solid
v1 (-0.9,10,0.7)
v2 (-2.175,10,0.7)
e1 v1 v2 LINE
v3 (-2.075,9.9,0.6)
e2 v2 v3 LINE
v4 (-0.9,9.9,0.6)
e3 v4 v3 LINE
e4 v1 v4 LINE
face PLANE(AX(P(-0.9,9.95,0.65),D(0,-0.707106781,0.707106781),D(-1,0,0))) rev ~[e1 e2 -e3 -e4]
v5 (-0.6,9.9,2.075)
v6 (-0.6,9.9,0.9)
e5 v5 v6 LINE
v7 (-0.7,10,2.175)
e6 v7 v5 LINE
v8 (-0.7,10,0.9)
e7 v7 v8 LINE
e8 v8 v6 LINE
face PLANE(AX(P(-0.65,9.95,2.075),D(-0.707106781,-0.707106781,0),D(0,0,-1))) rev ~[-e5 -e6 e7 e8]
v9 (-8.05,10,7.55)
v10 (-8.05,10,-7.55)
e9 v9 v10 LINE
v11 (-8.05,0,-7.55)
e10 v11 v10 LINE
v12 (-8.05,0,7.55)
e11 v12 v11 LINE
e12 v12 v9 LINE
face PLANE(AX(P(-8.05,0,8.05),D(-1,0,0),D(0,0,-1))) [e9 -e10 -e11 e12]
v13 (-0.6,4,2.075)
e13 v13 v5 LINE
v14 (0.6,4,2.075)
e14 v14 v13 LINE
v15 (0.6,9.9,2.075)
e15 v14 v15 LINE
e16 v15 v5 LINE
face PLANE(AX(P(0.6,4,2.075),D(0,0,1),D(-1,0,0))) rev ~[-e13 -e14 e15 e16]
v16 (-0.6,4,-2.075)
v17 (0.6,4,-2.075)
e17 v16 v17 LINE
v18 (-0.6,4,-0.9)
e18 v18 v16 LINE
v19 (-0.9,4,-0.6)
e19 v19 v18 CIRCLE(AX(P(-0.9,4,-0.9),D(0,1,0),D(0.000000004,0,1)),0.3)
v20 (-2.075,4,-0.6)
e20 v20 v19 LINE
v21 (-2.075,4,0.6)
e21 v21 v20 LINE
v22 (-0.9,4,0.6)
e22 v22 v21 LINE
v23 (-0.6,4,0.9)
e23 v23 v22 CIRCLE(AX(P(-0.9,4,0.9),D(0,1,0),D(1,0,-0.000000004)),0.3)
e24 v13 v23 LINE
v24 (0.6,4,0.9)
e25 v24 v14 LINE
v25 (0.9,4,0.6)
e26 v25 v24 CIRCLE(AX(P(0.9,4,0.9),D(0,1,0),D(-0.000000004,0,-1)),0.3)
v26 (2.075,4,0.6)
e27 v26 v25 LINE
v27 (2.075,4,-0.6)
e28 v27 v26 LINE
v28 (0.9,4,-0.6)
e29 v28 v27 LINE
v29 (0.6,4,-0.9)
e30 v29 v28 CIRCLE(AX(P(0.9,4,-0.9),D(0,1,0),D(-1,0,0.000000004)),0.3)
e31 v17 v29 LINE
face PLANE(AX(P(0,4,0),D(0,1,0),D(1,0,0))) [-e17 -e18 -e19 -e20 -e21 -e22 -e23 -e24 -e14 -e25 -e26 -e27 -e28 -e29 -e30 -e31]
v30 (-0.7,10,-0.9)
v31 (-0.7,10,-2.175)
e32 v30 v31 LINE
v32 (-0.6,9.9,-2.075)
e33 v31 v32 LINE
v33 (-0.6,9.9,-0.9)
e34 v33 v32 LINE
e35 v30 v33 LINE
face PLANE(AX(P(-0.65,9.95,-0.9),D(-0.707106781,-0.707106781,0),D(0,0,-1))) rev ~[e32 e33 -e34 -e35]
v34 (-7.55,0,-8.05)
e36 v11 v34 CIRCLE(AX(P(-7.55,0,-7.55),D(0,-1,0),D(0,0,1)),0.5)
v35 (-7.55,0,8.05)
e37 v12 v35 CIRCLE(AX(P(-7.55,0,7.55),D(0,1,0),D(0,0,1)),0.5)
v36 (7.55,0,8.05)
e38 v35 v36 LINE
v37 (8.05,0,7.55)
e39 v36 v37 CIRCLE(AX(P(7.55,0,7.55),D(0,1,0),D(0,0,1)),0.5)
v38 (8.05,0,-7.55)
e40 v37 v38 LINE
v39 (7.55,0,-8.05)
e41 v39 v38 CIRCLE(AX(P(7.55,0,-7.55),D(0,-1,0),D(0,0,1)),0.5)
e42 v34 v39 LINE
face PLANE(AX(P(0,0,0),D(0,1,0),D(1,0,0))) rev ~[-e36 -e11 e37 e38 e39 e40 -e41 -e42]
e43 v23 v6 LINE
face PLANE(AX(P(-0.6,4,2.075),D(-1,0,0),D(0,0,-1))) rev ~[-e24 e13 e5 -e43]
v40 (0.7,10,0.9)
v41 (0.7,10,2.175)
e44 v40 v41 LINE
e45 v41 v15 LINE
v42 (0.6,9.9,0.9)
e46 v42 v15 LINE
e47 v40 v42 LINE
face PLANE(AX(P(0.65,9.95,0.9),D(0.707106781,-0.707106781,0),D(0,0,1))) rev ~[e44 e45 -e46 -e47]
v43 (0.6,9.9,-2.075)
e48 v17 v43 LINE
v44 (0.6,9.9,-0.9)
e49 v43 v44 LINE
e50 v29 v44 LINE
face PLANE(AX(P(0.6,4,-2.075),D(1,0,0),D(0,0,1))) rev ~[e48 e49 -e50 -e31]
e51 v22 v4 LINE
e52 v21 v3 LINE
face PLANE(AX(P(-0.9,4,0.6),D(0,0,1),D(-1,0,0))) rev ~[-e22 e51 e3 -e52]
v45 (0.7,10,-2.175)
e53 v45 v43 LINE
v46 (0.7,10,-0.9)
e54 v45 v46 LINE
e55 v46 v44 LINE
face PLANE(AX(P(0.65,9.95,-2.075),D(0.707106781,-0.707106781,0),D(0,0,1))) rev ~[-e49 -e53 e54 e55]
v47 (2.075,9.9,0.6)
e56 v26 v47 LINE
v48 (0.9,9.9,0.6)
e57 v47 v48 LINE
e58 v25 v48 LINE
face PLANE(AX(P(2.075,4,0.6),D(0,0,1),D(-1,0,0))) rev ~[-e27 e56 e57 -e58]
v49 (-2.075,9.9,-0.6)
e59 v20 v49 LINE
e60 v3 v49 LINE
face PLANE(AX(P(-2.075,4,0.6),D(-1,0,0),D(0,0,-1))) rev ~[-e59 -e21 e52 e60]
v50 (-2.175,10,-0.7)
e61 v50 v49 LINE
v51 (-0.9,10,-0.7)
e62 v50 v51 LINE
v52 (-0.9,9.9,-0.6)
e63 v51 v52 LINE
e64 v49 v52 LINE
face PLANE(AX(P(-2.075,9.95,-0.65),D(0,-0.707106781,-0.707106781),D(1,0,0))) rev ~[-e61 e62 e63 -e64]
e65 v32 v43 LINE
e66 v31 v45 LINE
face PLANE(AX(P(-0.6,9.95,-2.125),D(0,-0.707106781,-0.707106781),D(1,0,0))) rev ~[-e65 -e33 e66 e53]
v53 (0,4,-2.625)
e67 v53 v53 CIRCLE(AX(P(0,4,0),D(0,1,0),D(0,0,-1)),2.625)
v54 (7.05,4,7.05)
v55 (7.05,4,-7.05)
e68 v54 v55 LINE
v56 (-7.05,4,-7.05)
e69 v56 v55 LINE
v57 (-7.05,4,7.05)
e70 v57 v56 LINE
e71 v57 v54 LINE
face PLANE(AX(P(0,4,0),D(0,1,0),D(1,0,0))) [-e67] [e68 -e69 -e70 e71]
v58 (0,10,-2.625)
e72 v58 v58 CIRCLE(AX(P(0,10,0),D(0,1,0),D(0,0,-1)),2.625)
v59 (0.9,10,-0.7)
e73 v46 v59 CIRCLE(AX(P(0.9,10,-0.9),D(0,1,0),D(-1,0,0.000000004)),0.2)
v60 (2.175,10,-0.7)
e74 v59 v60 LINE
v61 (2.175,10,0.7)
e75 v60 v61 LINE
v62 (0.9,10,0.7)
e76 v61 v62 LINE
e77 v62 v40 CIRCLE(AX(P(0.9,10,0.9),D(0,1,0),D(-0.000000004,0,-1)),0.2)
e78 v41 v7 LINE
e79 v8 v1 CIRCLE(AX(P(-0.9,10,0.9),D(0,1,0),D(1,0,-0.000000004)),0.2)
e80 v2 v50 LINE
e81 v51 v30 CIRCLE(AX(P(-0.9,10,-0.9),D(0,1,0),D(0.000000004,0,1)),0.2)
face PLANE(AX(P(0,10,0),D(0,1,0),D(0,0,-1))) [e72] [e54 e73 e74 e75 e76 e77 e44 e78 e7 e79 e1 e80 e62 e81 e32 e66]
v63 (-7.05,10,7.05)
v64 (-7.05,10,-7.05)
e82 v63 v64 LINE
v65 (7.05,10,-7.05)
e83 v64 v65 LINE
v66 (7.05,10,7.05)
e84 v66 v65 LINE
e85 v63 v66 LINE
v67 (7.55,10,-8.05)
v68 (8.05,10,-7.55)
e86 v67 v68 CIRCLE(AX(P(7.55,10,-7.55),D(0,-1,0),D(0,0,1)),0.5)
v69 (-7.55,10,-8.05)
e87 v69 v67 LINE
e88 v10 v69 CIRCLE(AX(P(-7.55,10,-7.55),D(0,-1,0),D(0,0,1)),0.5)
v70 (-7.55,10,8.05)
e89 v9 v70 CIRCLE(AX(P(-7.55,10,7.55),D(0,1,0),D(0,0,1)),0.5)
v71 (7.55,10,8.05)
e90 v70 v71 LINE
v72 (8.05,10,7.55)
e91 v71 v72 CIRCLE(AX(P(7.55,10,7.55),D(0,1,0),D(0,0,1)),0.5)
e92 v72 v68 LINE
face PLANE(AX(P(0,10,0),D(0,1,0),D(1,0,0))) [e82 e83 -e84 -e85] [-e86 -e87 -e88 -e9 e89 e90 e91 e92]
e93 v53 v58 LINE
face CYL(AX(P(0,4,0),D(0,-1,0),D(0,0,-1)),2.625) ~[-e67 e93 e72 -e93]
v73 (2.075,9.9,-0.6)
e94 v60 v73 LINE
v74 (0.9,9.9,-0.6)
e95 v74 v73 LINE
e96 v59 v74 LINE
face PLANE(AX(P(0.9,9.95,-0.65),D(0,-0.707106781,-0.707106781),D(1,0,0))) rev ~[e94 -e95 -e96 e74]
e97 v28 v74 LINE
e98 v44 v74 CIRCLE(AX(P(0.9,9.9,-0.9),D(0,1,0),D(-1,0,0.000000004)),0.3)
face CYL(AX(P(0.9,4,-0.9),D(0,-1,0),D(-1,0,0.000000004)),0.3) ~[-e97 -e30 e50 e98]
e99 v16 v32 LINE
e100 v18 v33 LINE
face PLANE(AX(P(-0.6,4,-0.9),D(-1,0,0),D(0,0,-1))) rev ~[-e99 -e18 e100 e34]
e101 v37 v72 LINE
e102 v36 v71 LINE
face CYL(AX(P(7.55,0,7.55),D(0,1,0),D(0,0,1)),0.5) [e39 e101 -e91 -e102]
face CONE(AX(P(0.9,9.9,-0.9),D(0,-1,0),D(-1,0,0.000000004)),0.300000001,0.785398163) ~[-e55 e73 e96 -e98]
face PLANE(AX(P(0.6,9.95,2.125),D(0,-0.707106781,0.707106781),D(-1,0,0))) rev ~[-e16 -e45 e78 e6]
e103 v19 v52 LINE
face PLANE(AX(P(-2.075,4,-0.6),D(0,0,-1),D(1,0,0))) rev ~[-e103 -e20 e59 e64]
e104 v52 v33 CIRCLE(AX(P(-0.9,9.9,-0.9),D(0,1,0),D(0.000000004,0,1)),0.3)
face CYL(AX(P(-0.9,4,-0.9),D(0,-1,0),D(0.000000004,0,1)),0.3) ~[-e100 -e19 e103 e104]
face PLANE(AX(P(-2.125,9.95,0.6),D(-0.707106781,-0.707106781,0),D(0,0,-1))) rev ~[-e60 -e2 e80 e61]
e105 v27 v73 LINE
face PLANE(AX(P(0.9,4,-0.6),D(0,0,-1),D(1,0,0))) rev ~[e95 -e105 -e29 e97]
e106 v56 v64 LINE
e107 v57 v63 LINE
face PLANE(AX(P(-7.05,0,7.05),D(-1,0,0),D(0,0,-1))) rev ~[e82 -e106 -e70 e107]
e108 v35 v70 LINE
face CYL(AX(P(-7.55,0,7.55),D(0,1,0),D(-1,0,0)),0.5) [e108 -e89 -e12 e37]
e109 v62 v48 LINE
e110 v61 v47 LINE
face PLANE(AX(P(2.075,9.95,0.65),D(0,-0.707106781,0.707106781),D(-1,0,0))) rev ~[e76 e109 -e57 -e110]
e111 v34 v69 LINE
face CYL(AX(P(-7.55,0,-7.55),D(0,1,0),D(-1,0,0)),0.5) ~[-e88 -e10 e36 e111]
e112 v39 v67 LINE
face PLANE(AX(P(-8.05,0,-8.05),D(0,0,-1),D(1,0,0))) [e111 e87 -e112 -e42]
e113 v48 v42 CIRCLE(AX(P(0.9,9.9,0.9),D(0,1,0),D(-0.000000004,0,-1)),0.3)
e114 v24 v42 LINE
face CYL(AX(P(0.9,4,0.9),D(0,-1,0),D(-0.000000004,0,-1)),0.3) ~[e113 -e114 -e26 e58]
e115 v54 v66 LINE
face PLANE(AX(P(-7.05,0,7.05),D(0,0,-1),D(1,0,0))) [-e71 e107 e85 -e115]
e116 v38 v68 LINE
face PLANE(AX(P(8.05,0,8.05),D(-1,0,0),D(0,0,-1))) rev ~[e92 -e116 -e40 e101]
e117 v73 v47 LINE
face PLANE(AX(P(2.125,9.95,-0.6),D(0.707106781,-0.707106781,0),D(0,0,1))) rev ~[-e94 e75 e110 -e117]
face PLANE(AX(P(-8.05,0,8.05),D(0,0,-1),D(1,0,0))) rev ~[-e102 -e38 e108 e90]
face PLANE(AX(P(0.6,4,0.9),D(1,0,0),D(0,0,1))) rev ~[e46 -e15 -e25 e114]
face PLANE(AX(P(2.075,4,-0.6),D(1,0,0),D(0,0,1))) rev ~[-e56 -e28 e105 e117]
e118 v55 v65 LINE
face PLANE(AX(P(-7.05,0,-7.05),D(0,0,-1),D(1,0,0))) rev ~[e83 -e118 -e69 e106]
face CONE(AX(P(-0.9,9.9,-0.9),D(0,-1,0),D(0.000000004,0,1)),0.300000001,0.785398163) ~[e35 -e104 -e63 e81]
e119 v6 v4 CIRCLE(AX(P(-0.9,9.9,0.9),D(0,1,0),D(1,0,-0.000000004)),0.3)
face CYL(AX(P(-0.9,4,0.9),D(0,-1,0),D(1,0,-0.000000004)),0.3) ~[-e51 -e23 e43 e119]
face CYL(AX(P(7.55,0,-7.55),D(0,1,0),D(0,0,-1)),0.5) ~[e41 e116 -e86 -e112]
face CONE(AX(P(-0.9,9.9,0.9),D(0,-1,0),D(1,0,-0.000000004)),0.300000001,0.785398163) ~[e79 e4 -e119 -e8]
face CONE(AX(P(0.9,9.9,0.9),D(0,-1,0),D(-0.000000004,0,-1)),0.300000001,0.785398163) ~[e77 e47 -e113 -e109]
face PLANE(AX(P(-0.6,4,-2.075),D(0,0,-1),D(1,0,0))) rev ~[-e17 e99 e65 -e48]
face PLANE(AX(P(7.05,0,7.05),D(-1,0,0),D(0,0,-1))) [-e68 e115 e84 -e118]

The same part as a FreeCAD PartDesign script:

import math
import FreeCAD as App
import Part
import Sketcher


def edges_at(feature, points):
    """Names of the edges that pass closest to the given points."""
    edges = feature.Shape.Edges
    near = lambda p: min(range(len(edges)), key=lambda i: edges[i].distToShape(Part.Vertex(*p))[0])
    return sorted({f"Edge{near(p) + 1}" for p in points})


def add_polygon(sketch, points):
    """Adds a closed chain of lines whose ends are joined by coincident constraints."""
    first, n = sketch.GeometryCount, len(points)
    for a, b in zip(points, points[1:] + points[:1]):
        sketch.addGeometry(Part.LineSegment(App.Vector(*a, 0), App.Vector(*b, 0)), False)
    for i in range(n):
        sketch.addConstraint(Sketcher.Constraint("Coincident", first + i, 2, first + (i + 1) % n, 1))

doc = App.newDocument("Part")
params = doc.addObject("Spreadsheet::Sheet", "Params")
for row, (alias, value) in enumerate([
    ("sketch1_width", "16.1 mm"),
    ("sketch1_width2", "14.1 mm"),
    ("pad1_length", "10 mm"),
    ("sketch2_width", "14.1 mm"),
    ("pad2_length", "4 mm"),
    ("sketch3_radius", "0.3 mm"),
    ("sketch3_diameter", "5.25 mm"),
    ("sketch3_width", "1.2 mm"),
    ("pad3_length", "6 mm"),
    ("chamfer_size", "0.1 mm"),
    ("fillet_radius", "0.5 mm"),
], start=1):
    params.set(f"A{row}", alias)
    params.set(f"B{row}", "=" + value)
    params.setAlias(f"B{row}", alias)

body = doc.addObject("PartDesign::Body", "Body")

# Sketch on XZ plane
sketch1 = body.newObject("Sketcher::SketchObject", "Sketch")
sketch1.AttachmentSupport = (doc.getObject("XZ_Plane"), [""])
sketch1.MapMode = "FlatFace"
add_polygon(sketch1, [(-8.05, -8.05), (-8.05, 8.05), (8.05, 8.05), (8.05, -8.05)])  # lines 0-3
add_polygon(sketch1, [(7.05, 7.05), (-7.05, 7.05), (-7.05, -7.05), (7.05, -7.05)])  # lines 4-7
sketch1.addConstraint(Sketcher.Constraint("Vertical", 0))
sketch1.addConstraint(Sketcher.Constraint("Horizontal", 1))
sketch1.addConstraint(Sketcher.Constraint("Vertical", 2))
sketch1.addConstraint(Sketcher.Constraint("Horizontal", 3))
sketch1.addConstraint(Sketcher.Constraint("Horizontal", 4))
sketch1.addConstraint(Sketcher.Constraint("Vertical", 5))
sketch1.addConstraint(Sketcher.Constraint("Horizontal", 6))
sketch1.addConstraint(Sketcher.Constraint("Vertical", 7))
sketch1.addConstraint(Sketcher.Constraint("Symmetric", 0, 2, 2, 2, -1, 1))
sketch1.addConstraint(Sketcher.Constraint("Symmetric", 4, 2, 6, 2, -1, 1))
sketch1.addConstraint(Sketcher.Constraint("Equal", 3, 0))
sketch1.addConstraint(Sketcher.Constraint("Equal", 6, 5))
sketch1.addConstraint(Sketcher.Constraint("DistanceX", 1, 1, 1, 2, 16.1))
sketch1.addConstraint(Sketcher.Constraint("DistanceX", 4, 2, 4, 1, 14.1))
sketch1.setExpression("Constraints[20]", "Params.sketch1_width")
sketch1.setExpression("Constraints[21]", "Params.sketch1_width2")
pad1 = body.newObject("PartDesign::Pad", "Pad")
pad1.Profile = sketch1
pad1.setExpression("Length", "Params.pad1_length")
pad1.Reversed = True

# Sketch on XZ plane
sketch2 = body.newObject("Sketcher::SketchObject", "Sketch001")
sketch2.AttachmentSupport = (doc.getObject("XZ_Plane"), [""])
sketch2.MapMode = "FlatFace"
add_polygon(sketch2, [(-7.05, -7.05), (-7.05, 7.05), (7.05, 7.05), (7.05, -7.05)])  # lines 0-3
sketch2.addConstraint(Sketcher.Constraint("Vertical", 0))
sketch2.addConstraint(Sketcher.Constraint("Horizontal", 1))
sketch2.addConstraint(Sketcher.Constraint("Vertical", 2))
sketch2.addConstraint(Sketcher.Constraint("Horizontal", 3))
sketch2.addConstraint(Sketcher.Constraint("Symmetric", 0, 2, 2, 2, -1, 1))
sketch2.addConstraint(Sketcher.Constraint("Equal", 3, 0))
sketch2.addConstraint(Sketcher.Constraint("DistanceX", 1, 1, 1, 2, 14.1))
sketch2.setExpression("Constraints[10]", "Params.sketch2_width")
pad2 = body.newObject("PartDesign::Pad", "Pad001")
pad2.Profile = sketch2
pad2.setExpression("Length", "Params.pad2_length")
pad2.Reversed = True

# Sketch on XZ plane
sketch3 = body.newObject("Sketcher::SketchObject", "Sketch002")
sketch3.AttachmentSupport = (doc.getObject("XZ_Plane"), [""])
sketch3.MapMode = "FlatFace"
sketch3.AttachmentOffset = App.Placement(App.Vector(0, 0, -4), App.Rotation())
sketch3.addGeometry(Part.Circle(App.Vector(0, 0, 0), App.Vector(0, 0, 1), 2.625), False)
sketch3.addGeometry(Part.ArcOfCircle(Part.Circle(App.Vector(-0.9, 0.9, 0), App.Vector(0, 0, 1), 0.3), math.radians(-90), math.radians(0)), False)
sketch3.addGeometry(Part.LineSegment(App.Vector(-0.9, 0.6, 0), App.Vector(-2.075, 0.6, 0)), False)
sketch3.addGeometry(Part.LineSegment(App.Vector(-2.075, 0.6, 0), App.Vector(-2.075, -0.6, 0)), False)
sketch3.addGeometry(Part.LineSegment(App.Vector(-2.075, -0.6, 0), App.Vector(-0.9, -0.6, 0)), False)
sketch3.addGeometry(Part.ArcOfCircle(Part.Circle(App.Vector(-0.9, -0.9, 0), App.Vector(0, 0, 1), 0.3), math.radians(0), math.radians(90)), False)
sketch3.addGeometry(Part.LineSegment(App.Vector(-0.6, -0.9, 0), App.Vector(-0.6, -2.075, 0)), False)
sketch3.addGeometry(Part.LineSegment(App.Vector(-0.6, -2.075, 0), App.Vector(0.6, -2.075, 0)), False)
sketch3.addGeometry(Part.LineSegment(App.Vector(0.6, -2.075, 0), App.Vector(0.6, -0.9, 0)), False)
sketch3.addGeometry(Part.ArcOfCircle(Part.Circle(App.Vector(0.9, -0.9, 0), App.Vector(0, 0, 1), 0.3), math.radians(90), math.radians(180)), False)
sketch3.addGeometry(Part.LineSegment(App.Vector(0.9, -0.6, 0), App.Vector(2.075, -0.6, 0)), False)
sketch3.addGeometry(Part.LineSegment(App.Vector(2.075, -0.6, 0), App.Vector(2.075, 0.6, 0)), False)
sketch3.addGeometry(Part.LineSegment(App.Vector(2.075, 0.6, 0), App.Vector(0.9, 0.6, 0)), False)
sketch3.addGeometry(Part.ArcOfCircle(Part.Circle(App.Vector(0.9, 0.9, 0), App.Vector(0, 0, 1), 0.3), math.radians(-180), math.radians(-90)), False)
sketch3.addGeometry(Part.LineSegment(App.Vector(0.6, 0.9, 0), App.Vector(0.6, 2.075, 0)), False)
sketch3.addGeometry(Part.LineSegment(App.Vector(0.6, 2.075, 0), App.Vector(-0.6, 2.075, 0)), False)
sketch3.addGeometry(Part.LineSegment(App.Vector(-0.6, 2.075, 0), App.Vector(-0.6, 0.9, 0)), False)
sketch3.addConstraint(Sketcher.Constraint("Tangent", 1, 1, 2, 1))
sketch3.addConstraint(Sketcher.Constraint("Coincident", 2, 2, 3, 1))
sketch3.addConstraint(Sketcher.Constraint("Coincident", 3, 2, 4, 1))
sketch3.addConstraint(Sketcher.Constraint("Tangent", 4, 2, 5, 2))
sketch3.addConstraint(Sketcher.Constraint("Tangent", 5, 1, 6, 1))
sketch3.addConstraint(Sketcher.Constraint("Coincident", 6, 2, 7, 1))
sketch3.addConstraint(Sketcher.Constraint("Coincident", 7, 2, 8, 1))
sketch3.addConstraint(Sketcher.Constraint("Tangent", 8, 2, 9, 2))
sketch3.addConstraint(Sketcher.Constraint("Tangent", 9, 1, 10, 1))
sketch3.addConstraint(Sketcher.Constraint("Coincident", 10, 2, 11, 1))
sketch3.addConstraint(Sketcher.Constraint("Coincident", 11, 2, 12, 1))
sketch3.addConstraint(Sketcher.Constraint("Tangent", 12, 2, 13, 2))
sketch3.addConstraint(Sketcher.Constraint("Tangent", 13, 1, 14, 1))
sketch3.addConstraint(Sketcher.Constraint("Coincident", 14, 2, 15, 1))
sketch3.addConstraint(Sketcher.Constraint("Coincident", 15, 2, 16, 1))
sketch3.addConstraint(Sketcher.Constraint("Tangent", 16, 2, 1, 2))
sketch3.addConstraint(Sketcher.Constraint("Horizontal", 2))
sketch3.addConstraint(Sketcher.Constraint("Vertical", 3))
sketch3.addConstraint(Sketcher.Constraint("Horizontal", 4))
sketch3.addConstraint(Sketcher.Constraint("Vertical", 6))
sketch3.addConstraint(Sketcher.Constraint("Horizontal", 7))
sketch3.addConstraint(Sketcher.Constraint("Vertical", 8))
sketch3.addConstraint(Sketcher.Constraint("Horizontal", 10))
sketch3.addConstraint(Sketcher.Constraint("Vertical", 11))
sketch3.addConstraint(Sketcher.Constraint("Horizontal", 12))
sketch3.addConstraint(Sketcher.Constraint("Vertical", 14))
sketch3.addConstraint(Sketcher.Constraint("Horizontal", 15))
sketch3.addConstraint(Sketcher.Constraint("Vertical", 16))
sketch3.addConstraint(Sketcher.Constraint("Coincident", 0, 3, -1, 1))
sketch3.addConstraint(Sketcher.Constraint("Equal", 1, 5))
sketch3.addConstraint(Sketcher.Constraint("Equal", 5, 9))
sketch3.addConstraint(Sketcher.Constraint("Equal", 9, 13))
sketch3.addConstraint(Sketcher.Constraint("Symmetric", 1, 3, 9, 3, -1, 1))
sketch3.addConstraint(Sketcher.Constraint("Symmetric", 5, 3, 13, 3, -1, 1))
sketch3.addConstraint(Sketcher.Constraint("Symmetric", 5, 3, 9, 3, -2))
sketch3.addConstraint(Sketcher.Constraint("Equal", 4, 10))
sketch3.addConstraint(Sketcher.Constraint("Equal", 15, 3))
sketch3.addConstraint(Sketcher.Constraint("Equal", 12, 6))
sketch3.addConstraint(Sketcher.Constraint("Equal", 8, 14))
sketch3.addConstraint(Sketcher.Constraint("Radius", 1, 0.3))
sketch3.addConstraint(Sketcher.Constraint("Diameter", 0, 5.25))
sketch3.addConstraint(Sketcher.Constraint("DistanceX", 7, 1, 7, 2, 1.2))
sketch3.addConstraint(Sketcher.Constraint("DistanceX", 2, 2, 2, 1, 1.175))
sketch3.setExpression("Constraints[39]", "Params.sketch3_radius")
sketch3.setExpression("Constraints[40]", "Params.sketch3_diameter")
sketch3.setExpression("Constraints[41]", "Params.sketch3_width")
pad3 = body.newObject("PartDesign::Pad", "Pad002")
pad3.Profile = sketch3
pad3.setExpression("Length", "Params.pad3_length")
pad3.Reversed = True
doc.recompute()

chamfer = body.newObject("PartDesign::Chamfer", "Chamfer")
chamfer.Base = (pad3, edges_at(pad3, [
    (0.688, 10, 0.688),
    (0, 10, 2.075),
    (-0.6, 10, 1.488),
    (-0.688, 10, 0.688),
    (-2.075, 10, 0),
    (-1.488, 10, -0.6),
    (-0.688, 10, -0.688),
    (-0.6, 10, -1.488),
    (0.688, 10, -0.688),
    (1.488, 10, -0.6),
    (1.488, 10, 0.6),
    (0.6, 10, 1.488),
    (-1.488, 10, 0.6),
    (0, 10, -2.075),
    (0.6, 10, -1.488),
    (2.075, 10, 0),
]))
chamfer.setExpression("Size", "Params.chamfer_size")
doc.recompute()

fillet = body.newObject("PartDesign::Fillet", "Fillet")
fillet.Base = (chamfer, edges_at(chamfer, [
    (8.05, 5, 8.05),
    (-8.05, 5, 8.05),
    (-8.05, 5, -8.05),
    (8.05, 5, -8.05),
]))
fillet.setExpression("Radius", "Params.fillet_radius")

doc.recompute()
